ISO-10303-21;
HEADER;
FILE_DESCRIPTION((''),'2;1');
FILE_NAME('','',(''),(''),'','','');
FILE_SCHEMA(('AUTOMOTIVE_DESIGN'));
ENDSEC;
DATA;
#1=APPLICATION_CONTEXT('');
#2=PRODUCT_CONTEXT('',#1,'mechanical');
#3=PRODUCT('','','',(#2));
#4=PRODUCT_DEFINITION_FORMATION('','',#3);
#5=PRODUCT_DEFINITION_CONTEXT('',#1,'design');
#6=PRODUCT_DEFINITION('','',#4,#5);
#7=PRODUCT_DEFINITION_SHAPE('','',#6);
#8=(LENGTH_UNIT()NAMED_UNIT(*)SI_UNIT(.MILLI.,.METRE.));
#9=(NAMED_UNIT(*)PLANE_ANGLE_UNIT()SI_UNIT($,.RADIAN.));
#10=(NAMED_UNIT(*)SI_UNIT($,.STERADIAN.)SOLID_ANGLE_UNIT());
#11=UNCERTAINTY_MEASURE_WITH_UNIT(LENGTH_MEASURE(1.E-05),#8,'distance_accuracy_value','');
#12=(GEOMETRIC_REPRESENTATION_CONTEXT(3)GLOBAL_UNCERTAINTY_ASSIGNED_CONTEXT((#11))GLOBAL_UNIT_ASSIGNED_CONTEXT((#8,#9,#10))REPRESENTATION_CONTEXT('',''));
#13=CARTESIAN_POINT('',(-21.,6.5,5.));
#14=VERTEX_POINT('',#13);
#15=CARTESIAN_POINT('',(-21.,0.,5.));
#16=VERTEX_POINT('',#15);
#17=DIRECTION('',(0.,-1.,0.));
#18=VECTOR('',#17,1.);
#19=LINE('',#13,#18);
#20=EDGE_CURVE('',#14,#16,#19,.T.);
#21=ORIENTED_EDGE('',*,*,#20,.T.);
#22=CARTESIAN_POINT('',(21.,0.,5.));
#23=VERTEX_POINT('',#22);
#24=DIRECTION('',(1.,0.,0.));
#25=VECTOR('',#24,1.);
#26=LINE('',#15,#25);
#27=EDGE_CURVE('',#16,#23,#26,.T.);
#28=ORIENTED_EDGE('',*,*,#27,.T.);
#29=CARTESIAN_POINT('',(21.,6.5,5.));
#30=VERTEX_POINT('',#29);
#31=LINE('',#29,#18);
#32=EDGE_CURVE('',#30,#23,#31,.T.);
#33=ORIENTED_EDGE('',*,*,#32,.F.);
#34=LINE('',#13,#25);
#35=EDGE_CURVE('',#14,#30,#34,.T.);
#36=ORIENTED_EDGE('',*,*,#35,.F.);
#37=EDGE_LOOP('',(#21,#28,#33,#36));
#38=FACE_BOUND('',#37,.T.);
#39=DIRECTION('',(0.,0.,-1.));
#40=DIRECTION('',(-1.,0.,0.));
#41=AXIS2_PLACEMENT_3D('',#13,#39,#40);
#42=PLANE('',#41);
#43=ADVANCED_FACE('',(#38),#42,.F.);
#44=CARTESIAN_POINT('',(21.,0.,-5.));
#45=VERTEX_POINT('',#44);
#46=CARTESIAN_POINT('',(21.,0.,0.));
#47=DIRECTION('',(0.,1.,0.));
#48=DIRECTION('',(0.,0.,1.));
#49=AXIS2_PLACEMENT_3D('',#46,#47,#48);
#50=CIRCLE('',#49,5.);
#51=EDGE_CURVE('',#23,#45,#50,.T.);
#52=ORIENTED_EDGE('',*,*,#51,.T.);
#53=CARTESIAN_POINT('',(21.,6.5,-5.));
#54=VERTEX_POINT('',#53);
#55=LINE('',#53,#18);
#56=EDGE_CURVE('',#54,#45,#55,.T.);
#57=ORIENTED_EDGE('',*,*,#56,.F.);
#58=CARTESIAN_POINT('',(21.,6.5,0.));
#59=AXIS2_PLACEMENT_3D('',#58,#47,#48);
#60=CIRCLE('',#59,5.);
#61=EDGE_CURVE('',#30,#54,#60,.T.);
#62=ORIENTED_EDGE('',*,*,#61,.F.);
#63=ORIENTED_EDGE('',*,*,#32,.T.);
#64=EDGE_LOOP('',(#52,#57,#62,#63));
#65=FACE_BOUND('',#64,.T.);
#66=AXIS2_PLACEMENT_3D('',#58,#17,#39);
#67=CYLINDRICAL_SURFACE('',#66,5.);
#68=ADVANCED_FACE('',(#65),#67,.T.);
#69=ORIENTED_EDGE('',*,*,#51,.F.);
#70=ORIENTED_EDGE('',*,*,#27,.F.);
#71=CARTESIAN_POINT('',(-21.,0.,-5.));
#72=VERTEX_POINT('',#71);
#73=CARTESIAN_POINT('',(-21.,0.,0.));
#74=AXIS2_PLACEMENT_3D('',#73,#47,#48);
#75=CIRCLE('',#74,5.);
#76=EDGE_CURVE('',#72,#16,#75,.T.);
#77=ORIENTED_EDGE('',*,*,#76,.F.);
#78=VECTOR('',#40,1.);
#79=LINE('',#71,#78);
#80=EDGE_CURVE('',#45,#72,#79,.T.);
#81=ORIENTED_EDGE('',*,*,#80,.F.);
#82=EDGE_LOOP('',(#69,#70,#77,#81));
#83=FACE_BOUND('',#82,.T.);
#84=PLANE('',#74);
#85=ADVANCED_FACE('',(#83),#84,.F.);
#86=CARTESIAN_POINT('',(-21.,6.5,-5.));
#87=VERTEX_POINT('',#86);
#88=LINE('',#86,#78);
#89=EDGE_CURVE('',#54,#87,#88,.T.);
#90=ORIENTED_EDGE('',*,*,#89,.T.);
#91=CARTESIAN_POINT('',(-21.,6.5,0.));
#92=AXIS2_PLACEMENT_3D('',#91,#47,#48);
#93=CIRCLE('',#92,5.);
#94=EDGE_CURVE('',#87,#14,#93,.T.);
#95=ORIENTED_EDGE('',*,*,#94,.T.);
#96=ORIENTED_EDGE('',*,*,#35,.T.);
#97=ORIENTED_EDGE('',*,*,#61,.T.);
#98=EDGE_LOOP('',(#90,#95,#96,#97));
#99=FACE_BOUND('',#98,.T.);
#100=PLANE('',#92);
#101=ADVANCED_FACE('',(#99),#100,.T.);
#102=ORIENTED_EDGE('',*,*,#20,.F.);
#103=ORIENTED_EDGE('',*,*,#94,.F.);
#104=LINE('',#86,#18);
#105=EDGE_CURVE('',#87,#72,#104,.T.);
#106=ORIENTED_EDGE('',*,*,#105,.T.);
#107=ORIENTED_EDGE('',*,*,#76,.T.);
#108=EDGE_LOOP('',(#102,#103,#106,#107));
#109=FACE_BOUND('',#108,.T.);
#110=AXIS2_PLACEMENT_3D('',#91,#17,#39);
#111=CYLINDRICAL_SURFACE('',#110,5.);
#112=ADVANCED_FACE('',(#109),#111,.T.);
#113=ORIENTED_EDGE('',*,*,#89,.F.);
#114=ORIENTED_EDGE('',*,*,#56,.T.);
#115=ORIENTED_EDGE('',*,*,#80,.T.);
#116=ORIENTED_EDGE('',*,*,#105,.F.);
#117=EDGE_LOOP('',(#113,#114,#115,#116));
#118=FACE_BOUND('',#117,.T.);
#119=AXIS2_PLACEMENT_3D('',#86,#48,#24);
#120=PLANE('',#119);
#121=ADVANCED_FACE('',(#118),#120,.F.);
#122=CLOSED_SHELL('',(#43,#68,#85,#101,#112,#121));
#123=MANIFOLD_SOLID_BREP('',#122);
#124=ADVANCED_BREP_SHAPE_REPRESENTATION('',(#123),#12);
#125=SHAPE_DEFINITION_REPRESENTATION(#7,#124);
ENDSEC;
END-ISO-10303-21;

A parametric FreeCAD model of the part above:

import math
import FreeCAD as App
import Part
import Sketcher

doc = App.newDocument("Part")
body = doc.addObject("PartDesign::Body", "Body")

sketch1 = body.newObject("Sketcher::SketchObject", "Sketch")
sketch1.AttachmentSupport = (doc.getObject("XZ_Plane"), [""])
sketch1.MapMode = "FlatFace"
sketch1.addGeometry(Part.LineSegment(App.Vector(21, -5, 0), App.Vector(-21, -5, 0)), False)
sketch1.addGeometry(Part.ArcOfCircle(Part.Circle(App.Vector(-21, 0, 0), App.Vector(0, 0, 1), 5), math.radians(90), math.radians(270)), False)
sketch1.addGeometry(Part.LineSegment(App.Vector(-21, 5, 0), App.Vector(21, 5, 0)), False)
sketch1.addGeometry(Part.ArcOfCircle(Part.Circle(App.Vector(21, 0, 0), App.Vector(0, 0, 1), 5), math.radians(-90), math.radians(90)), False)
sketch1.addConstraint(Sketcher.Constraint("Tangent", 0, 2, 1, 2))
sketch1.addConstraint(Sketcher.Constraint("Tangent", 1, 1, 2, 1))
sketch1.addConstraint(Sketcher.Constraint("Tangent", 2, 2, 3, 2))
sketch1.addConstraint(Sketcher.Constraint("Tangent", 3, 1, 0, 1))
sketch1.addConstraint(Sketcher.Constraint("Horizontal", 0))
sketch1.addConstraint(Sketcher.Constraint("Horizontal", 2))
sketch1.addConstraint(Sketcher.Constraint("Symmetric", 1, 3, 3, 3, -1, 1))
sketch1.addConstraint(Sketcher.Constraint("Radius", 1, 5.0))
sketch1.addConstraint(Sketcher.Constraint("DistanceX", 0, 2, 0, 1, 42.0))
pad1 = body.newObject("PartDesign::Pad", "Pad")
pad1.Profile = sketch1
pad1.Length = 6.5
pad1.Reversed = True

doc.recompute()
